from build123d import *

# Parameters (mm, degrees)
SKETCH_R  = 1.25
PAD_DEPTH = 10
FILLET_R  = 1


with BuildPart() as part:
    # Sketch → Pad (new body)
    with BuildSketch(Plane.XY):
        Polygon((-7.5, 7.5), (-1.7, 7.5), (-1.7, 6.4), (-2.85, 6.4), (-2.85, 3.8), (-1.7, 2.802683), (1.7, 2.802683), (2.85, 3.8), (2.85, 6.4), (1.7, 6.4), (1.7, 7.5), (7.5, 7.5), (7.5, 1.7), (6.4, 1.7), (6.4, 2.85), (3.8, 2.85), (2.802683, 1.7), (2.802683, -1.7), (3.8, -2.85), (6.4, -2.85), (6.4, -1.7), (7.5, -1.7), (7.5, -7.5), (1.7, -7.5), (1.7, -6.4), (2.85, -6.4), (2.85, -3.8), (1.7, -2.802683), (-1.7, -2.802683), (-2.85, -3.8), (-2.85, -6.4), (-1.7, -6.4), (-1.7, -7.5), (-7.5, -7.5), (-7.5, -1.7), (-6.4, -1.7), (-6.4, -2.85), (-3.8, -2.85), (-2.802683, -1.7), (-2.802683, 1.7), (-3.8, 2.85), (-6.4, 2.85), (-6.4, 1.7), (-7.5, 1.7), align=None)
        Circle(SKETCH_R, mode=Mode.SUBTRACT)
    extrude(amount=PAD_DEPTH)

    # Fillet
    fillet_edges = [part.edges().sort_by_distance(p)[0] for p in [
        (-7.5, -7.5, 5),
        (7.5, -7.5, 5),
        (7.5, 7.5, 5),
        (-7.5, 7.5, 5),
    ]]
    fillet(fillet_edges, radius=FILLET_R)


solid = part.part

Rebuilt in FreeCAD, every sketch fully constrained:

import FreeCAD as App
import Part
import Sketcher

V = App.Vector
Q = App.Units.Quantity


def edges_at(feature, points):
    """Names of the edges that pass closest to the given points."""
    edges = feature.Shape.Edges
    near = lambda p: min(range(len(edges)), key=lambda i: edges[i].distToShape(Part.Vertex(*p))[0])
    return sorted({f"Edge{near(p) + 1}" for p in points})

doc = App.newDocument("Part")
body = doc.addObject("PartDesign::Body", "Body")

sketch1 = doc.addObject("Sketcher::SketchObject", "Sketch")
body.addObject(sketch1)
sketch1.AttachmentSupport = (doc.XY_Plane, [""])
sketch1.MapMode = "FlatFace"
sketch1.addGeometry(Part.LineSegment(V(-1.7, 7.5, 0), V(-7.5, 7.5, 0)), False)
sketch1.addGeometry(Part.LineSegment(V(-7.5, 7.5, 0), V(-7.5, 1.7, 0)), False)
sketch1.addGeometry(Part.LineSegment(V(-7.5, 1.7, 0), V(-6.4, 1.7, 0)), False)
sketch1.addGeometry(Part.LineSegment(V(-6.4, 1.7, 0), V(-6.4, 2.85, 0)), False)
sketch1.addGeometry(Part.LineSegment(V(-6.4, 2.85, 0), V(-3.8, 2.85, 0)), False)
sketch1.addGeometry(Part.LineSegment(V(-3.8, 2.85, 0), V(-2.802683, 1.7, 0)), False)
sketch1.addGeometry(Part.LineSegment(V(-2.802683, 1.7, 0), V(-2.802683, -1.7, 0)), False)
sketch1.addGeometry(Part.LineSegment(V(-2.802683, -1.7, 0), V(-3.8, -2.85, 0)), False)
sketch1.addGeometry(Part.LineSegment(V(-3.8, -2.85, 0), V(-6.4, -2.85, 0)), False)
sketch1.addGeometry(Part.LineSegment(V(-6.4, -2.85, 0), V(-6.4, -1.7, 0)), False)
sketch1.addGeometry(Part.LineSegment(V(-6.4, -1.7, 0), V(-7.5, -1.7, 0)), False)
sketch1.addGeometry(Part.LineSegment(V(-7.5, -1.7, 0), V(-7.5, -7.5, 0)), False)
sketch1.addGeometry(Part.LineSegment(V(-7.5, -7.5, 0), V(-1.7, -7.5, 0)), False)
sketch1.addGeometry(Part.LineSegment(V(-1.7, -7.5, 0), V(-1.7, -6.4, 0)), False)
sketch1.addGeometry(Part.LineSegment(V(-1.7, -6.4, 0), V(-2.85, -6.4, 0)), False)
sketch1.addGeometry(Part.LineSegment(V(-2.85, -6.4, 0), V(-2.85, -3.8, 0)), False)
sketch1.addGeometry(Part.LineSegment(V(-2.85, -3.8, 0), V(-1.7, -2.802683, 0)), False)
sketch1.addGeometry(Part.LineSegment(V(-1.7, -2.802683, 0), V(1.7, -2.802683, 0)), False)
sketch1.addGeometry(Part.LineSegment(V(1.7, -2.802683, 0), V(2.85, -3.8, 0)), False)
sketch1.addGeometry(Part.LineSegment(V(2.85, -3.8, 0), V(2.85, -6.4, 0)), False)
sketch1.addGeometry(Part.LineSegment(V(2.85, -6.4, 0), V(1.7, -6.4, 0)), False)
sketch1.addGeometry(Part.LineSegment(V(1.7, -6.4, 0), V(1.7, -7.5, 0)), False)
sketch1.addGeometry(Part.LineSegment(V(1.7, -7.5, 0), V(7.5, -7.5, 0)), False)
sketch1.addGeometry(Part.LineSegment(V(7.5, -7.5, 0), V(7.5, -1.7, 0)), False)
sketch1.addGeometry(Part.LineSegment(V(7.5, -1.7, 0), V(6.4, -1.7, 0)), False)
sketch1.addGeometry(Part.LineSegment(V(6.4, -1.7, 0), V(6.4, -2.85, 0)), False)
sketch1.addGeometry(Part.LineSegment(V(6.4, -2.85, 0), V(3.8, -2.85, 0)), False)
sketch1.addGeometry(Part.LineSegment(V(3.8, -2.85, 0), V(2.802683, -1.7, 0)), False)
sketch1.addGeometry(Part.LineSegment(V(2.802683, -1.7, 0), V(2.802683, 1.7, 0)), False)
sketch1.addGeometry(Part.LineSegment(V(2.802683, 1.7, 0), V(3.8, 2.85, 0)), False)
sketch1.addGeometry(Part.LineSegment(V(3.8, 2.85, 0), V(6.4, 2.85, 0)), False)
sketch1.addGeometry(Part.LineSegment(V(6.4, 2.85, 0), V(6.4, 1.7, 0)), False)
sketch1.addGeometry(Part.LineSegment(V(6.4, 1.7, 0), V(7.5, 1.7, 0)), False)
sketch1.addGeometry(Part.LineSegment(V(7.5, 1.7, 0), V(7.5, 7.5, 0)), False)
sketch1.addGeometry(Part.LineSegment(V(7.5, 7.5, 0), V(1.7, 7.5, 0)), False)
sketch1.addGeometry(Part.LineSegment(V(1.7, 7.5, 0), V(1.7, 6.4, 0)), False)
sketch1.addGeometry(Part.LineSegment(V(1.7, 6.4, 0), V(2.85, 6.4, 0)), False)
sketch1.addGeometry(Part.LineSegment(V(2.85, 6.4, 0), V(2.85, 3.8, 0)), False)
sketch1.addGeometry(Part.LineSegment(V(2.85, 3.8, 0), V(1.7, 2.802683, 0)), False)
sketch1.addGeometry(Part.LineSegment(V(1.7, 2.802683, 0), V(-1.7, 2.802683, 0)), False)
sketch1.addGeometry(Part.LineSegment(V(-1.7, 2.802683, 0), V(-2.85, 3.8, 0)), False)
sketch1.addGeometry(Part.LineSegment(V(-2.85, 3.8, 0), V(-2.85, 6.4, 0)), False)
sketch1.addGeometry(Part.LineSegment(V(-2.85, 6.4, 0), V(-1.7, 6.4, 0)), False)
sketch1.addGeometry(Part.LineSegment(V(-1.7, 6.4, 0), V(-1.7, 7.5, 0)), False)
sketch1.addGeometry(Part.Circle(V(0, 0, 0), V(0, 0, 1), 1.25), False)
sketch1.addConstraint(Sketcher.Constraint("Coincident", 0, 2, 1, 1))
sketch1.addConstraint(Sketcher.Constraint("Coincident", 1, 2, 2, 1))
sketch1.addConstraint(Sketcher.Constraint("Coincident", 2, 2, 3, 1))
sketch1.addConstraint(Sketcher.Constraint("Coincident", 3, 2, 4, 1))
sketch1.addConstraint(Sketcher.Constraint("Coincident", 4, 2, 5, 1))
sketch1.addConstraint(Sketcher.Constraint("Coincident", 5, 2, 6, 1))
sketch1.addConstraint(Sketcher.Constraint("Coincident", 6, 2, 7, 1))
sketch1.addConstraint(Sketcher.Constraint("Coincident", 7, 2, 8, 1))
sketch1.addConstraint(Sketcher.Constraint("Coincident", 8, 2, 9, 1))
sketch1.addConstraint(Sketcher.Constraint("Coincident", 9, 2, 10, 1))
sketch1.addConstraint(Sketcher.Constraint("Coincident", 10, 2, 11, 1))
sketch1.addConstraint(Sketcher.Constraint("Coincident", 11, 2, 12, 1))
sketch1.addConstraint(Sketcher.Constraint("Coincident", 12, 2, 13, 1))
sketch1.addConstraint(Sketcher.Constraint("Coincident", 13, 2, 14, 1))
sketch1.addConstraint(Sketcher.Constraint("Coincident", 14, 2, 15, 1))
sketch1.addConstraint(Sketcher.Constraint("Coincident", 15, 2, 16, 1))
sketch1.addConstraint(Sketcher.Constraint("Coincident", 16, 2, 17, 1))
sketch1.addConstraint(Sketcher.Constraint("Coincident", 17, 2, 18, 1))
sketch1.addConstraint(Sketcher.Constraint("Coincident", 18, 2, 19, 1))
sketch1.addConstraint(Sketcher.Constraint("Coincident", 19, 2, 20, 1))
sketch1.addConstraint(Sketcher.Constraint("Coincident", 20, 2, 21, 1))
sketch1.addConstraint(Sketcher.Constraint("Coincident", 21, 2, 22, 1))
sketch1.addConstraint(Sketcher.Constraint("Coincident", 22, 2, 23, 1))
sketch1.addConstraint(Sketcher.Constraint("Coincident", 23, 2, 24, 1))
sketch1.addConstraint(Sketcher.Constraint("Coincident", 24, 2, 25, 1))
sketch1.addConstraint(Sketcher.Constraint("Coincident", 25, 2, 26, 1))
sketch1.addConstraint(Sketcher.Constraint("Coincident", 26, 2, 27, 1))
sketch1.addConstraint(Sketcher.Constraint("Coincident", 27, 2, 28, 1))
sketch1.addConstraint(Sketcher.Constraint("Coincident", 28, 2, 29, 1))
sketch1.addConstraint(Sketcher.Constraint("Coincident", 29, 2, 30, 1))
sketch1.addConstraint(Sketcher.Constraint("Coincident", 30, 2, 31, 1))
sketch1.addConstraint(Sketcher.Constraint("Coincident", 31, 2, 32, 1))
sketch1.addConstraint(Sketcher.Constraint("Coincident", 32, 2, 33, 1))
sketch1.addConstraint(Sketcher.Constraint("Coincident", 33, 2, 34, 1))
sketch1.addConstraint(Sketcher.Constraint("Coincident", 34, 2, 35, 1))
sketch1.addConstraint(Sketcher.Constraint("Coincident", 35, 2, 36, 1))
sketch1.addConstraint(Sketcher.Constraint("Coincident", 36, 2, 37, 1))
sketch1.addConstraint(Sketcher.Constraint("Coincident", 37, 2, 38, 1))
sketch1.addConstraint(Sketcher.Constraint("Coincident", 38, 2, 39, 1))
sketch1.addConstraint(Sketcher.Constraint("Coincident", 39, 2, 40, 1))
sketch1.addConstraint(Sketcher.Constraint("Coincident", 40, 2, 41, 1))
sketch1.addConstraint(Sketcher.Constraint("Coincident", 41, 2, 42, 1))
sketch1.addConstraint(Sketcher.Constraint("Coincident", 42, 2, 43, 1))
sketch1.addConstraint(Sketcher.Constraint("Coincident", 43, 2, 0, 1))
sketch1.addConstraint(Sketcher.Constraint("Horizontal", 0))
sketch1.addConstraint(Sketcher.Constraint("Vertical", 1))
sketch1.addConstraint(Sketcher.Constraint("Horizontal", 2))
sketch1.addConstraint(Sketcher.Constraint("Vertical", 3))
sketch1.addConstraint(Sketcher.Constraint("Horizontal", 4))
sketch1.addConstraint(Sketcher.Constraint("Vertical", 6))
sketch1.addConstraint(Sketcher.Constraint("Horizontal", 8))
sketch1.addConstraint(Sketcher.Constraint("Vertical", 9))
sketch1.addConstraint(Sketcher.Constraint("Horizontal", 10))
sketch1.addConstraint(Sketcher.Constraint("Vertical", 11))
sketch1.addConstraint(Sketcher.Constraint("Horizontal", 12))
sketch1.addConstraint(Sketcher.Constraint("Vertical", 13))
sketch1.addConstraint(Sketcher.Constraint("Horizontal", 14))
sketch1.addConstraint(Sketcher.Constraint("Vertical", 15))
sketch1.addConstraint(Sketcher.Constraint("Horizontal", 17))
sketch1.addConstraint(Sketcher.Constraint("Vertical", 19))
sketch1.addConstraint(Sketcher.Constraint("Horizontal", 20))
sketch1.addConstraint(Sketcher.Constraint("Vertical", 21))
sketch1.addConstraint(Sketcher.Constraint("Horizontal", 22))
sketch1.addConstraint(Sketcher.Constraint("Vertical", 23))
sketch1.addConstraint(Sketcher.Constraint("Horizontal", 24))
sketch1.addConstraint(Sketcher.Constraint("Vertical", 25))
sketch1.addConstraint(Sketcher.Constraint("Horizontal", 26))
sketch1.addConstraint(Sketcher.Constraint("Vertical", 28))
sketch1.addConstraint(Sketcher.Constraint("Horizontal", 30))
sketch1.addConstraint(Sketcher.Constraint("Vertical", 31))
sketch1.addConstraint(Sketcher.Constraint("Horizontal", 32))
sketch1.addConstraint(Sketcher.Constraint("Vertical", 33))
sketch1.addConstraint(Sketcher.Constraint("Horizontal", 34))
sketch1.addConstraint(Sketcher.Constraint("Vertical", 35))
sketch1.addConstraint(Sketcher.Constraint("Horizontal", 36))
sketch1.addConstraint(Sketcher.Constraint("Vertical", 37))
sketch1.addConstraint(Sketcher.Constraint("Horizontal", 39))
sketch1.addConstraint(Sketcher.Constraint("Vertical", 41))
sketch1.addConstraint(Sketcher.Constraint("Horizontal", 42))
sketch1.addConstraint(Sketcher.Constraint("Vertical", 43))
sketch1.addConstraint(Sketcher.Constraint("Coincident", 44, 3, -1, 1))
sketch1.addConstraint(Sketcher.Constraint("Symmetric", 0, 2, 22, 2, -1, 1))
sketch1.addConstraint(Sketcher.Constraint("Symmetric", 2, 2, 24, 2, -1, 1))
sketch1.addConstraint(Sketcher.Constraint("Symmetric", 4, 2, 26, 2, -1, 1))
sketch1.addConstraint(Sketcher.Constraint("Symmetric", 5, 2, 27, 2, -1, 1))
sketch1.addConstraint(Sketcher.Constraint("Symmetric", 7, 2, 29, 2, -1, 1))
sketch1.addConstraint(Sketcher.Constraint("Symmetric", 9, 2, 31, 2, -1, 1))
sketch1.addConstraint(Sketcher.Constraint("Symmetric", 11, 2, 33, 2, -1, 1))
sketch1.addConstraint(Sketcher.Constraint("Symmetric", 13, 2, 35, 2, -1, 1))
sketch1.addConstraint(Sketcher.Constraint("Symmetric", 15, 2, 37, 2, -1, 1))
sketch1.addConstraint(Sketcher.Constraint("Symmetric", 16, 2, 38, 2, -1, 1))
sketch1.addConstraint(Sketcher.Constraint("Symmetric", 18, 2, 40, 2, -1, 1))
sketch1.addConstraint(Sketcher.Constraint("Symmetric", 20, 2, 42, 2, -1, 1))
sketch1.addConstraint(Sketcher.Constraint("Symmetric", 15, 2, 18, 2, -2))
sketch1.addConstraint(Sketcher.Constraint("Symmetric", 13, 2, 20, 2, -2))
sketch1.addConstraint(Sketcher.Constraint("Symmetric", 11, 2, 22, 2, -2))
sketch1.addConstraint(Sketcher.Constraint("Symmetric", 9, 2, 24, 2, -2))
sketch1.addConstraint(Sketcher.Constraint("Symmetric", 7, 2, 26, 2, -2))
sketch1.addConstraint(Sketcher.Constraint("Perpendicular", 5, 16))
sketch1.addConstraint(Sketcher.Constraint("Perpendicular", 7, 18))
sketch1.addConstraint(Sketcher.Constraint("Perpendicular", 18, 29))
sketch1.addConstraint(Sketcher.Constraint("Perpendicular", 29, 40))
sketch1.addConstraint(Sketcher.Constraint("Horizontal", 2, 2, 5, 2))
sketch1.addConstraint(Sketcher.Constraint("Horizontal", 6, 2, 9, 2))
sketch1.addConstraint(Sketcher.Constraint("Vertical", 13, 2, 16, 2))
sketch1.addConstraint(Sketcher.Constraint("Equal", 34, 1))
sketch1.addConstraint(Sketcher.Constraint("Equal", 42, 3))
sketch1.addConstraint(Sketcher.Constraint("Equal", 39, 6))
sketch1.addConstraint(Sketcher.Constraint("Equal", 32, 13))
sketch1.addConstraint(Sketcher.Constraint("Equal", 30, 15))
sketch1.addConstraint(Sketcher.Constraint("Diameter", 44, Q("2.5 mm")))
sketch1.addConstraint(Sketcher.Constraint("DistanceX", 0, 2, 0, 1, Q("5.8 mm")))
sketch1.addConstraint(Sketcher.Constraint("DistanceX", 2, 1, 2, 2, Q("1.1 mm")))
sketch1.addConstraint(Sketcher.Constraint("DistanceX", 4, 1, 4, 2, Q("2.6 mm")))
sketch1.addConstraint(Sketcher.Constraint("DistanceX", 17, 1, 17, 2, Q("3.4 mm")))
sketch1.addConstraint(Sketcher.Constraint("DistanceX", 14, 2, 14, 1, Q("1.15 mm")))
sketch1.addConstraint(Sketcher.Constraint("Distance", 5, Q("1.522216 mm")))
pad1 = doc.addObject("PartDesign::Pad", "Pad")
body.addObject(pad1)
pad1.Profile = sketch1
pad1.Length = 10
doc.recompute()

fillet = doc.addObject("PartDesign::Fillet", "Fillet")
body.addObject(fillet)
fillet.Base = (pad1, edges_at(pad1, [
    (-7.5, -7.5, 5),
    (7.5, -7.5, 5),
    (7.5, 7.5, 5),
    (-7.5, 7.5, 5),
]))
fillet.Radius = 1

doc.recompute()
